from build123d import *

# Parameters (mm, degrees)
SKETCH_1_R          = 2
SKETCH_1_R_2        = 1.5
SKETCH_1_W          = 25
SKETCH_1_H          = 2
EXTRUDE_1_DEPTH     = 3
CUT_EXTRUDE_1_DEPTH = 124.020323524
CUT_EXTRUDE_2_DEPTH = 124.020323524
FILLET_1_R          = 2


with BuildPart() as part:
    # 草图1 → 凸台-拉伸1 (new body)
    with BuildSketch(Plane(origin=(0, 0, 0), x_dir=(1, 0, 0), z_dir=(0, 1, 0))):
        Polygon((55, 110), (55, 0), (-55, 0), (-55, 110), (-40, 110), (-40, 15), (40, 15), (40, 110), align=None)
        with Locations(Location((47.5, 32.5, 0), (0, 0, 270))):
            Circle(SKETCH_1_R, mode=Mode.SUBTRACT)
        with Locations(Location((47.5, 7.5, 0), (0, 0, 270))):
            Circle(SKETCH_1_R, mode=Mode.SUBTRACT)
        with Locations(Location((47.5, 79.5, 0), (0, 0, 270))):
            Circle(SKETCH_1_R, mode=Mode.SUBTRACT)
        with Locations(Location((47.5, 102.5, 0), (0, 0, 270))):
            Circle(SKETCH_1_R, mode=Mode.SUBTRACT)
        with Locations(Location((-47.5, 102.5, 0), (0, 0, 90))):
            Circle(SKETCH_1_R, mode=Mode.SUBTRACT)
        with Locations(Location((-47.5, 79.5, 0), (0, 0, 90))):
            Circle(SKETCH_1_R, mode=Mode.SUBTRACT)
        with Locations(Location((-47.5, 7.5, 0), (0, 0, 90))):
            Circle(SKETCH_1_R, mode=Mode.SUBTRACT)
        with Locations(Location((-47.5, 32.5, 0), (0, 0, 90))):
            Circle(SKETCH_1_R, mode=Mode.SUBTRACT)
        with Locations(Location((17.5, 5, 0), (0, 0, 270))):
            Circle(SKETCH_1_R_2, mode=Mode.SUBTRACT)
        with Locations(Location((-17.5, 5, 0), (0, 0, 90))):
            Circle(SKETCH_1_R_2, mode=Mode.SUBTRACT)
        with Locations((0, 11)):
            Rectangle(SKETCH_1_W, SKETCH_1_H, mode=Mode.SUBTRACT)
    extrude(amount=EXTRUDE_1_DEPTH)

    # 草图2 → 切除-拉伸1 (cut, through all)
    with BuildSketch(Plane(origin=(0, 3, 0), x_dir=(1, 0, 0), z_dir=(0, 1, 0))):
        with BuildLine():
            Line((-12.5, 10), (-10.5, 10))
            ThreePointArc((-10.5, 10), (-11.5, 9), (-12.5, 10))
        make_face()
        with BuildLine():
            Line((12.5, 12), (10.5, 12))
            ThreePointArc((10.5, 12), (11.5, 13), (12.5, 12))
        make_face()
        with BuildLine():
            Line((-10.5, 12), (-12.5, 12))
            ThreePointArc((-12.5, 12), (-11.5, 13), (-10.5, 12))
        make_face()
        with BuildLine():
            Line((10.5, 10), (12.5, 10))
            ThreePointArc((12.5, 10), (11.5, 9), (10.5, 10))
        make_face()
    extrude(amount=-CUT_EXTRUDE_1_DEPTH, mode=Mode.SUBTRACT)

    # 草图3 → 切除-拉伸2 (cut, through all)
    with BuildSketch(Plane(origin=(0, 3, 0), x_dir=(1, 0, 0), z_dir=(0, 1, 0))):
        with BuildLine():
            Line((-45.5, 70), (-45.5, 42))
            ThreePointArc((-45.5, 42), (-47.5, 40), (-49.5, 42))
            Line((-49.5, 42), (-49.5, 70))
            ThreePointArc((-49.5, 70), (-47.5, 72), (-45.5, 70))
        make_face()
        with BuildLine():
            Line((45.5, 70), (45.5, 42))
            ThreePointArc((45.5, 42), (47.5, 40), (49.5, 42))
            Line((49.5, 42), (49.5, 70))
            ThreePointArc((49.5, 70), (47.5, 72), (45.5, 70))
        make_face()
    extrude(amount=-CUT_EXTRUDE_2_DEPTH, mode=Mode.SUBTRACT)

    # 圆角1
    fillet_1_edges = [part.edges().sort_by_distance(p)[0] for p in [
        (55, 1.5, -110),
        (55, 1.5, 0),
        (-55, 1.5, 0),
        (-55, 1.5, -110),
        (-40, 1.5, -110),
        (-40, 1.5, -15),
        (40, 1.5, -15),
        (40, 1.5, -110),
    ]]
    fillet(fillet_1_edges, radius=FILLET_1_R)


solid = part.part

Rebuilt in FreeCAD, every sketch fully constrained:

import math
import FreeCAD as App
import Part
import Sketcher

V = App.Vector
Q = App.Units.Quantity


def edges_at(feature, points):
    """Names of the edges that pass closest to the given points."""
    edges = feature.Shape.Edges
    near = lambda p: min(range(len(edges)), key=lambda i: edges[i].distToShape(Part.Vertex(*p))[0])
    return sorted({f"Edge{near(p) + 1}" for p in points})

doc = App.newDocument("Part")
body = doc.addObject("PartDesign::Body", "Body")

# Sketch on XZ plane
sketch1 = doc.addObject("Sketcher::SketchObject", "Sketch")
body.addObject(sketch1)
sketch1.AttachmentSupport = (doc.XZ_Plane, [""])
sketch1.MapMode = "FlatFace"
sketch1.addGeometry([
    Part.LineSegment(V(55, 0, 0), V(55, -110, 0)),  # 0
    Part.LineSegment(V(55, -110, 0), V(40, -110, 0)),  # 1
    Part.LineSegment(V(40, -110, 0), V(40, -15, 0)),  # 2
    Part.LineSegment(V(40, -15, 0), V(-40, -15, 0)),  # 3
    Part.LineSegment(V(-40, -15, 0), V(-40, -110, 0)),  # 4
    Part.LineSegment(V(-40, -110, 0), V(-55, -110, 0)),  # 5
    Part.LineSegment(V(-55, -110, 0), V(-55, 0, 0)),  # 6
    Part.LineSegment(V(-55, 0, 0), V(55, 0, 0)),  # 7
    Part.Circle(V(47.5, -7.5, 0), V(0, 0, 1), 2),  # 8
    Part.Circle(V(17.5, -5, 0), V(0, 0, 1), 1.5),  # 9
    Part.Circle(V(47.5, -32.5, 0), V(0, 0, 1), 2),  # 10
    Part.LineSegment(V(-12.5, -10, 0), V(-12.5, -12, 0)),  # 11
    Part.LineSegment(V(-12.5, -12, 0), V(12.5, -12, 0)),  # 12
    Part.LineSegment(V(12.5, -12, 0), V(12.5, -10, 0)),  # 13
    Part.LineSegment(V(12.5, -10, 0), V(-12.5, -10, 0)),  # 14
    Part.Circle(V(-17.5, -5, 0), V(0, 0, 1), 1.5),  # 15
    Part.Circle(V(-47.5, -7.5, 0), V(0, 0, 1), 2),  # 16
    Part.Circle(V(-47.5, -32.5, 0), V(0, 0, 1), 2),  # 17
    Part.Circle(V(47.5, -79.5, 0), V(0, 0, 1), 2),  # 18
    Part.Circle(V(47.5, -102.5, 0), V(0, 0, 1), 2),  # 19
    Part.Circle(V(-47.5, -79.5, 0), V(0, 0, 1), 2),  # 20
    Part.Circle(V(-47.5, -102.5, 0), V(0, 0, 1), 2),  # 21
], False)
sketch1.addConstraint([
    Sketcher.Constraint("Coincident", 0, 2, 1, 1),
    Sketcher.Constraint("Coincident", 1, 2, 2, 1),
    Sketcher.Constraint("Coincident", 2, 2, 3, 1),
    Sketcher.Constraint("Coincident", 3, 2, 4, 1),
    Sketcher.Constraint("Coincident", 4, 2, 5, 1),
    Sketcher.Constraint("Coincident", 5, 2, 6, 1),
    Sketcher.Constraint("Coincident", 6, 2, 7, 1),
    Sketcher.Constraint("Coincident", 7, 2, 0, 1),
    Sketcher.Constraint("Coincident", 11, 2, 12, 1),
    Sketcher.Constraint("Coincident", 12, 2, 13, 1),
    Sketcher.Constraint("Coincident", 13, 2, 14, 1),
    Sketcher.Constraint("Coincident", 14, 2, 11, 1),
    Sketcher.Constraint("Vertical", 0),
    Sketcher.Constraint("Horizontal", 1),
    Sketcher.Constraint("Vertical", 2),
    Sketcher.Constraint("Horizontal", 3),
    Sketcher.Constraint("Vertical", 4),
    Sketcher.Constraint("Horizontal", 5),
    Sketcher.Constraint("Vertical", 6),
    Sketcher.Constraint("Horizontal", 7),
    Sketcher.Constraint("Vertical", 11),
    Sketcher.Constraint("Horizontal", 12),
    Sketcher.Constraint("Vertical", 13),
    Sketcher.Constraint("Horizontal", 14),
    Sketcher.Constraint("Equal", 8, 10),
    Sketcher.Constraint("Equal", 9, 15),
    Sketcher.Constraint("Equal", 10, 16),
    Sketcher.Constraint("Equal", 16, 17),
    Sketcher.Constraint("Equal", 17, 18),
    Sketcher.Constraint("Equal", 18, 19),
    Sketcher.Constraint("Equal", 19, 20),
    Sketcher.Constraint("Equal", 20, 21),
    Sketcher.Constraint("Symmetric", 6, 2, 7, 2, -1, 1),
    Sketcher.Constraint("Symmetric", 9, 3, 15, 3, -2),
    Sketcher.Constraint("Symmetric", 8, 3, 16, 3, -2),
    Sketcher.Constraint("Symmetric", 10, 3, 17, 3, -2),
    Sketcher.Constraint("Symmetric", 18, 3, 20, 3, -2),
    Sketcher.Constraint("Symmetric", 19, 3, 21, 3, -2),
    Sketcher.Constraint("Symmetric", 1, 2, 4, 2, -2),
    Sketcher.Constraint("Vertical", 8, 3, 10, 3),
    Sketcher.Constraint("Vertical", 10, 3, 18, 3),
    Sketcher.Constraint("Vertical", 18, 3, 19, 3),
    Sketcher.Constraint("Equal", 7, 0),
    Sketcher.Constraint("Diameter", 8, Q("4 mm")),
    Sketcher.Constraint("Diameter", 9, Q("3 mm")),
    Sketcher.Constraint("DistanceX", 1, 2, 1, 1, Q("15 mm")),
    Sketcher.Constraint("DistanceX", 3, 2, 3, 1, Q("80 mm")),
    Sketcher.Constraint("DistanceX", 12, 1, 12, 2, Q("25 mm")),
    Sketcher.Constraint("DistanceY", 2, 1, 2, 2, Q("95 mm")),
    Sketcher.Constraint("DistanceY", 11, 2, 11, 1, Q("2 mm")),
    Sketcher.Constraint("DistanceY", 9, 3, -1, 1, Q("5 mm")),
    Sketcher.Constraint("DistanceY", 11, 2, -1, 1, Q("12 mm")),
    Sketcher.Constraint("DistanceX", 9, 3, 8, 3, Q("30 mm")),
    Sketcher.Constraint("DistanceY", 10, 3, 8, 3, Q("25 mm")),
    Sketcher.Constraint("DistanceX", 15, 3, 9, 3, Q("35 mm")),
    Sketcher.Constraint("DistanceY", 18, 3, 10, 3, Q("47 mm")),
    Sketcher.Constraint("DistanceY", 19, 3, 18, 3, Q("23 mm")),
    Sketcher.Constraint("DistanceX", 15, 3, 11, 2, Q("5 mm")),
    Sketcher.Constraint("DistanceY", 8, 3, -1, 1, Q("7.5 mm")),
])
pad1 = doc.addObject("PartDesign::Pad", "Pad")
body.addObject(pad1)
pad1.Profile = sketch1
pad1.Length = 3
pad1.Reversed = True

# Sketch on XZ plane
sketch2 = doc.addObject("Sketcher::SketchObject", "Sketch001")
body.addObject(sketch2)
sketch2.AttachmentSupport = (doc.XZ_Plane, [""])
sketch2.MapMode = "FlatFace"
sketch2.AttachmentOffset = App.Placement(V(0, 0, -3), App.Rotation())
sketch2.addGeometry([
    Part.LineSegment(V(-10.5, -10, 0), V(-12.5, -10, 0)),  # 0
    Part.ArcOfCircle(Part.Circle(V(-11.5, -10, 0), V(0, 0, 1), 1), math.radians(0), math.radians(180)),  # 1
    Part.LineSegment(V(10.5, -12, 0), V(12.5, -12, 0)),  # 2
    Part.ArcOfCircle(Part.Circle(V(11.5, -12, 0), V(0, 0, 1), 1), math.radians(180), math.radians(360)),  # 3
    Part.LineSegment(V(-12.5, -12, 0), V(-10.5, -12, 0)),  # 4
    Part.ArcOfCircle(Part.Circle(V(-11.5, -12, 0), V(0, 0, 1), 1), math.radians(180), math.radians(360)),  # 5
    Part.LineSegment(V(12.5, -10, 0), V(10.5, -10, 0)),  # 6
    Part.ArcOfCircle(Part.Circle(V(11.5, -10, 0), V(0, 0, 1), 1), math.radians(0), math.radians(180)),  # 7
], False)
sketch2.addConstraint([
    Sketcher.Constraint("Coincident", 0, 1, 1, 1),
    Sketcher.Constraint("Coincident", 1, 2, 0, 2),
    Sketcher.Constraint("Coincident", 2, 1, 3, 1),
    Sketcher.Constraint("Coincident", 3, 2, 2, 2),
    Sketcher.Constraint("Coincident", 4, 1, 5, 1),
    Sketcher.Constraint("Coincident", 5, 2, 4, 2),
    Sketcher.Constraint("Coincident", 6, 1, 7, 1),
    Sketcher.Constraint("Coincident", 7, 2, 6, 2),
    Sketcher.Constraint("Horizontal", 0),
    Sketcher.Constraint("Horizontal", 2),
    Sketcher.Constraint("Horizontal", 4),
    Sketcher.Constraint("Horizontal", 6),
    Sketcher.Constraint("Equal", 1, 3),
    Sketcher.Constraint("Equal", 3, 5),
    Sketcher.Constraint("Equal", 5, 7),
    Sketcher.Constraint("Symmetric", 3, 3, 5, 3, -2),
    Sketcher.Constraint("Symmetric", 1, 3, 7, 3, -2),
    Sketcher.Constraint("Horizontal", 7, 3, 0, 1),
    Sketcher.Constraint("Horizontal", 5, 3, 2, 1),
    Sketcher.Constraint("Horizontal", 3, 2, 4, 1),
    Sketcher.Constraint("Horizontal", 1, 2, 6, 1),
    Sketcher.Constraint("Vertical", 1, 3, 5, 3),
    Sketcher.Constraint("Radius", 1, Q("1 mm")),
    Sketcher.Constraint("DistanceY", 1, 3, -1, 1, Q("10 mm")),
    Sketcher.Constraint("DistanceY", 3, 3, -1, 1, Q("12 mm")),
    Sketcher.Constraint("DistanceX", 1, 3, 3, 3, Q("23 mm")),
])
pocket1 = doc.addObject("PartDesign::Pocket", "Pocket")
body.addObject(pocket1)
pocket1.Profile = sketch2
pocket1.Type = "ThroughAll"
pocket1.Reversed = True

# Sketch on XZ plane
sketch3 = doc.addObject("Sketcher::SketchObject", "Sketch002")
body.addObject(sketch3)
sketch3.AttachmentSupport = (doc.XZ_Plane, [""])
sketch3.MapMode = "FlatFace"
sketch3.AttachmentOffset = App.Placement(V(0, 0, -3), App.Rotation())
sketch3.addGeometry([
    Part.LineSegment(V(-45.5, -42, 0), V(-45.5, -70, 0)),  # 0
    Part.ArcOfCircle(Part.Circle(V(-47.5, -70, 0), V(0, 0, 1), 2), math.radians(180), math.radians(360)),  # 1
    Part.LineSegment(V(-49.5, -70, 0), V(-49.5, -42, 0)),  # 2
    Part.ArcOfCircle(Part.Circle(V(-47.5, -42, 0), V(0, 0, 1), 2), math.radians(0), math.radians(180)),  # 3
    Part.LineSegment(V(45.5, -70, 0), V(45.5, -42, 0)),  # 4
    Part.ArcOfCircle(Part.Circle(V(47.5, -42, 0), V(0, 0, 1), 2), math.radians(0), math.radians(180)),  # 5
    Part.LineSegment(V(49.5, -42, 0), V(49.5, -70, 0)),  # 6
    Part.ArcOfCircle(Part.Circle(V(47.5, -70, 0), V(0, 0, 1), 2), math.radians(180), math.radians(360)),  # 7
], False)
sketch3.addConstraint([
    Sketcher.Constraint("Tangent", 0, 2, 1, 2),
    Sketcher.Constraint("Tangent", 1, 1, 2, 1),
    Sketcher.Constraint("Tangent", 2, 2, 3, 2),
    Sketcher.Constraint("Tangent", 3, 1, 0, 1),
    Sketcher.Constraint("Tangent", 4, 2, 5, 2),
    Sketcher.Constraint("Tangent", 5, 1, 6, 1),
    Sketcher.Constraint("Tangent", 6, 2, 7, 2),
    Sketcher.Constraint("Tangent", 7, 1, 4, 1),
    Sketcher.Constraint("Vertical", 0),
    Sketcher.Constraint("Vertical", 2),
    Sketcher.Constraint("Vertical", 4),
    Sketcher.Constraint("Vertical", 6),
    Sketcher.Constraint("Equal", 3, 5),
    Sketcher.Constraint("Symmetric", 3, 3, 5, 3, -2),
    Sketcher.Constraint("Horizontal", 1, 3, 7, 3),
    Sketcher.Constraint("Radius", 1, Q("2 mm")),
    Sketcher.Constraint("DistanceY", 0, 2, 0, 1, Q("28 mm")),
    Sketcher.Constraint("DistanceY", 1, 3, -1, 1, Q("70 mm")),
    Sketcher.Constraint("DistanceX", 3, 3, 5, 3, Q("95 mm")),
])
pocket2 = doc.addObject("PartDesign::Pocket", "Pocket001")
body.addObject(pocket2)
pocket2.Profile = sketch3
pocket2.Type = "ThroughAll"
pocket2.Reversed = True
doc.recompute()

fillet = doc.addObject("PartDesign::Fillet", "Fillet")
body.addObject(fillet)
fillet.Base = (pocket2, edges_at(pocket2, [
    (55, 1.5, -110),
    (55, 1.5, 0),
    (-55, 1.5, 0),
    (-55, 1.5, -110),
    (-40, 1.5, -110),
    (-40, 1.5, -15),
    (40, 1.5, -15),
    (40, 1.5, -110),
]))
fillet.Radius = 2

doc.recompute()
